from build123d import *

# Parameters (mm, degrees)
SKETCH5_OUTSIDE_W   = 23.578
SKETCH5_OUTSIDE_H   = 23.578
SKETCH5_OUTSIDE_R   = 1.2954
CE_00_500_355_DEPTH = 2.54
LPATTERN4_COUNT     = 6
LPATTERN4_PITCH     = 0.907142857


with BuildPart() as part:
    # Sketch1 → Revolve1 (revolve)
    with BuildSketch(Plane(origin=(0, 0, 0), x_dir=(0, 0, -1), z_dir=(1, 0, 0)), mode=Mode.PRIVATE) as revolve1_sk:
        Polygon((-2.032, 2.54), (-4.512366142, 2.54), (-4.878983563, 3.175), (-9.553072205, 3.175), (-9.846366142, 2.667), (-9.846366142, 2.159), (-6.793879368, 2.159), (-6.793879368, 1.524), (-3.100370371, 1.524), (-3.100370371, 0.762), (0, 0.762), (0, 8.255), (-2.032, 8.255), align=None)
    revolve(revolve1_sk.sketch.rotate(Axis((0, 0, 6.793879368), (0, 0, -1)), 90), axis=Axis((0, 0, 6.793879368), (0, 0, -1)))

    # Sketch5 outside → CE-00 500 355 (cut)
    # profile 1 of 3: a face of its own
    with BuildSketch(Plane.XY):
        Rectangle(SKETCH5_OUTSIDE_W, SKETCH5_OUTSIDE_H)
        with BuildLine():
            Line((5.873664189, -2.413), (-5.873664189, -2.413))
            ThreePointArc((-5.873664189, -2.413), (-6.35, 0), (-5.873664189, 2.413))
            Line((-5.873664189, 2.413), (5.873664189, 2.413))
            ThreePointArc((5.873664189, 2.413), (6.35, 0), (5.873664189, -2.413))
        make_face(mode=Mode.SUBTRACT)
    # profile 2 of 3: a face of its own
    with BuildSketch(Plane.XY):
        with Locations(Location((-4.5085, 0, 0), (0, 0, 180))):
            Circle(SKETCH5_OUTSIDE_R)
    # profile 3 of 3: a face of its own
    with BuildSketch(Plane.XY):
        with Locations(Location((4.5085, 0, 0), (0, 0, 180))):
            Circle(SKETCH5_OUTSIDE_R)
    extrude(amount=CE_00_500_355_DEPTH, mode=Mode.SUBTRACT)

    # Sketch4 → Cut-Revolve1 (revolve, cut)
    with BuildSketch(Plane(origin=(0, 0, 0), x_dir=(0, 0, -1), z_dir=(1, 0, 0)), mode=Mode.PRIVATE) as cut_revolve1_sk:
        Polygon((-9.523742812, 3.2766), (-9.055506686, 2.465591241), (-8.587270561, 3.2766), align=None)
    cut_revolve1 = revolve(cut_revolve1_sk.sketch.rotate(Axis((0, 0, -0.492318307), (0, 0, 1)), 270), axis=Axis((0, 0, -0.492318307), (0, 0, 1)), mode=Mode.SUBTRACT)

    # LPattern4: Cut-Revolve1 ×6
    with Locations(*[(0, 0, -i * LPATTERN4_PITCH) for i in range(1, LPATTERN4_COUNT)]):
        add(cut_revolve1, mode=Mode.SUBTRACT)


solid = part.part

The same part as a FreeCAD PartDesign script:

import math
import FreeCAD as App
import Part
import Sketcher

V = App.Vector
Q = App.Units.Quantity


def add_polygon(sketch, points):
    """Adds a closed chain of lines whose ends are joined by coincident constraints."""
    first, n = sketch.GeometryCount, len(points)
    for a, b in zip(points, points[1:] + points[:1]):
        sketch.addGeometry(Part.LineSegment(App.Vector(*a, 0), App.Vector(*b, 0)), False)
    for i in range(n):
        sketch.addConstraint(Sketcher.Constraint("Coincident", first + i, 2, first + (i + 1) % n, 1))

doc = App.newDocument("Part")
params = doc.addObject("Spreadsheet::Sheet", "Params")
for row, (alias, value) in enumerate([
    ("sketch1_width", "0.02 in"),
    ("sketch1_width2", "0.03 in"),
    ("sketch1_height", "0.08 in"),
    ("sketch1_width3", "0.025 in"),
    ("sketch1_width4", "0.295 in"),
    ("revolution_angle", "360 deg"),
    ("sketch2_radius", "0.25 in"),
    ("sketch2_diameter", "0.102 in"),
    ("pocket1_length", "0.1 in"),
    ("groove_angle", "360 deg"),
    ("linearpattern_pitch", "0.907143 mm"),
], start=1):
    params.set(f"A{row}", alias)
    params.set(f"B{row}", "=" + value)
    params.setAlias(f"B{row}", alias)

body = doc.addObject("PartDesign::Body", "Body")

sketch1 = doc.addObject("Sketcher::SketchObject", "Sketch")
body.addObject(sketch1)
sketch1.AttachmentSupport = (doc.YZ_Plane, [""])
sketch1.MapMode = "FlatFace"
add_polygon(sketch1, [(2.5, 2), (2.5, 4.5), (3.2, 4.9), (3.2, 9.6), (2.7, 9.8), (2.2, 9.8), (2.2, 6.8), (1.5, 6.8), (1.5, 3.1), (0.8, 3.1), (0.8, 0), (8.3, 0), (8.3, 2)])
sketch1.addConstraint([
    Sketcher.Constraint("Vertical", 0),
    Sketcher.Constraint("Vertical", 2),
    Sketcher.Constraint("Horizontal", 4),
    Sketcher.Constraint("Vertical", 5),
    Sketcher.Constraint("Horizontal", 6),
    Sketcher.Constraint("Vertical", 7),
    Sketcher.Constraint("Horizontal", 8),
    Sketcher.Constraint("Vertical", 9),
    Sketcher.Constraint("Horizontal", 10),
    Sketcher.Constraint("Vertical", 11),
    Sketcher.Constraint("Horizontal", 12),
    Sketcher.Constraint("PointOnObject", 9, 2, -1),
    Sketcher.Constraint("Angle", 1, Q("30 deg")),
    Sketcher.Constraint("Angle", 3, Q("150 deg")),
    Sketcher.Constraint("DistanceX", 4, 2, 4, 1, Q("0.02 in")),
    Sketcher.Constraint("DistanceX", 8, 2, 8, 1, Q("0.03 in")),
    Sketcher.Constraint("DistanceY", 11, 1, 11, 2, Q("0.08 in")),
    Sketcher.Constraint("DistanceX", -1, 1, 0, 2, Q("0.1 in")),
    Sketcher.Constraint("DistanceX", 1, 2, 10, 2, Q("0.2 in")),
    Sketcher.Constraint("DistanceX", 6, 2, 6, 1, Q("0.025 in")),
    Sketcher.Constraint("DistanceX", 10, 1, 10, 2, Q("0.295 in")),
    Sketcher.Constraint("DistanceX", 12, 2, 12, 1, Q("0.225 in")),
    Sketcher.Constraint("DistanceY", 0, 2, 3, 2, Q("0.21 in")),
    Sketcher.Constraint("DistanceY", 7, 2, 7, 1, Q("3.693509 mm")),
    Sketcher.Constraint("DistanceY", 9, 2, 9, 1, Q("3.10037 mm")),
    Sketcher.Constraint("DistanceY", 7, 2, 2, 2, Q("6.452702 mm")),
])
sketch1.setExpression("Constraints[27]", "Params.sketch1_width")
sketch1.setExpression("Constraints[28]", "Params.sketch1_width2")
sketch1.setExpression("Constraints[29]", "Params.sketch1_height")
sketch1.setExpression("Constraints[32]", "Params.sketch1_width3")
sketch1.setExpression("Constraints[33]", "Params.sketch1_width4")
revolution = doc.addObject("PartDesign::Revolution", "Revolution")
body.addObject(revolution)
revolution.Profile = sketch1
revolution.ReferenceAxis = (sketch1, ["V_Axis"])
revolution.setExpression("Angle", "Params.revolution_angle")

sketch2 = doc.addObject("Sketcher::SketchObject", "Sketch001")
body.addObject(sketch2)
sketch2.AttachmentSupport = (doc.XY_Plane, [""])
sketch2.MapMode = "FlatFace"
add_polygon(sketch2, [(-11.8, 11.8), (-11.8, -11.8), (11.8, -11.8), (11.8, 11.8)])
sketch2.addGeometry(Part.ArcOfCircle(Part.Circle(V(0, 0, 0), V(0, 0, 1), 6.4), math.radians(-22), math.radians(22)), False)
sketch2.addGeometry(Part.LineSegment(V(5.9, -2.4, 0), V(-5.9, -2.4, 0)), False)
sketch2.addGeometry(Part.ArcOfCircle(Part.Circle(V(0, 0, 0), V(0, 0, 1), 6.4), math.radians(158), math.radians(202)), False)
sketch2.addGeometry(Part.LineSegment(V(-5.9, 2.4, 0), V(5.9, 2.4, 0)), False)
sketch2.addGeometry(Part.Circle(V(-4.5, 0, 0), V(0, 0, 1), 1.3), False)
sketch2.addGeometry(Part.Circle(V(4.5, 0, 0), V(0, 0, 1), 1.3), False)
sketch2.addConstraint([
    Sketcher.Constraint("Coincident", 4, 1, 5, 1),
    Sketcher.Constraint("Coincident", 5, 2, 6, 2),
    Sketcher.Constraint("Coincident", 6, 1, 7, 1),
    Sketcher.Constraint("Coincident", 7, 2, 4, 2),
    Sketcher.Constraint("Vertical", 0),
    Sketcher.Constraint("Horizontal", 1),
    Sketcher.Constraint("Vertical", 2),
    Sketcher.Constraint("Horizontal", 3),
    Sketcher.Constraint("Horizontal", 5),
    Sketcher.Constraint("Horizontal", 7),
    Sketcher.Constraint("Coincident", 4, 3, -1, 1),
    Sketcher.Constraint("Coincident", 6, 3, -1, 1),
    Sketcher.Constraint("Equal", 4, 6),
    Sketcher.Constraint("Equal", 8, 9),
    Sketcher.Constraint("Symmetric", 8, 3, 9, 3, -1, 1),
    Sketcher.Constraint("Symmetric", 0, 2, 2, 2, -1, 1),
    Sketcher.Constraint("PointOnObject", 8, 3, -1),
    Sketcher.Constraint("Vertical", 5, 2, 6, 1),
    Sketcher.Constraint("Equal", 3, 0),
    Sketcher.Constraint("Radius", 4, Q("0.25 in")),
    Sketcher.Constraint("Diameter", 8, Q("0.102 in")),
    Sketcher.Constraint("DistanceY", 5, 2, 6, 1, Q("0.19 in")),
    Sketcher.Constraint("DistanceX", 8, 3, 9, 3, Q("0.355 in")),
    Sketcher.Constraint("DistanceX", 1, 1, 1, 2, Q("23.578 mm")),
])
sketch2.setExpression("Constraints[23]", "Params.sketch2_radius")
sketch2.setExpression("Constraints[24]", "Params.sketch2_diameter")
pocket1 = doc.addObject("PartDesign::Pocket", "Pocket")
body.addObject(pocket1)
pocket1.Profile = sketch2
pocket1.setExpression("Length", "Params.pocket1_length")
pocket1.Reversed = True

sketch3 = doc.addObject("Sketcher::SketchObject", "Sketch002")
body.addObject(sketch3)
sketch3.AttachmentSupport = (doc.YZ_Plane, [""])
sketch3.MapMode = "FlatFace"
add_polygon(sketch3, [(3.3, 9.5), (2.5, 9.1), (3.3, 8.6)])
sketch3.addConstraint([
    Sketcher.Constraint("Vertical", 2),
    Sketcher.Constraint("Equal", 0, 1),
    Sketcher.Constraint("Angle", 0, Q("-150 deg")),
    Sketcher.Constraint("DistanceX", -1, 1, 1, 2, Q("0.129 in")),
    Sketcher.Constraint("DistanceY", 2, 1, 2, 2, Q("0.936472 mm")),
    Sketcher.Constraint("DistanceY", -1, 1, 1, 2, Q("8.587271 mm")),
])
groove = doc.addObject("PartDesign::Groove", "Groove")
body.addObject(groove)
groove.Profile = sketch3
groove.ReferenceAxis = (sketch3, ["V_Axis"])
groove.setExpression("Angle", "Params.groove_angle")
doc.recompute()

linearpattern = doc.addObject("PartDesign::LinearPattern", "LinearPattern")
body.addObject(linearpattern)
linearpattern.Originals = [groove]
linearpattern.Direction = (doc.Z_Axis, [""])
linearpattern.Mode = "offset"
linearpattern.setExpression("Offset", "Params.linearpattern_pitch")
linearpattern.Occurrences = 6
linearpattern.Reversed = True
body.Tip = linearpattern

doc.recompute()
